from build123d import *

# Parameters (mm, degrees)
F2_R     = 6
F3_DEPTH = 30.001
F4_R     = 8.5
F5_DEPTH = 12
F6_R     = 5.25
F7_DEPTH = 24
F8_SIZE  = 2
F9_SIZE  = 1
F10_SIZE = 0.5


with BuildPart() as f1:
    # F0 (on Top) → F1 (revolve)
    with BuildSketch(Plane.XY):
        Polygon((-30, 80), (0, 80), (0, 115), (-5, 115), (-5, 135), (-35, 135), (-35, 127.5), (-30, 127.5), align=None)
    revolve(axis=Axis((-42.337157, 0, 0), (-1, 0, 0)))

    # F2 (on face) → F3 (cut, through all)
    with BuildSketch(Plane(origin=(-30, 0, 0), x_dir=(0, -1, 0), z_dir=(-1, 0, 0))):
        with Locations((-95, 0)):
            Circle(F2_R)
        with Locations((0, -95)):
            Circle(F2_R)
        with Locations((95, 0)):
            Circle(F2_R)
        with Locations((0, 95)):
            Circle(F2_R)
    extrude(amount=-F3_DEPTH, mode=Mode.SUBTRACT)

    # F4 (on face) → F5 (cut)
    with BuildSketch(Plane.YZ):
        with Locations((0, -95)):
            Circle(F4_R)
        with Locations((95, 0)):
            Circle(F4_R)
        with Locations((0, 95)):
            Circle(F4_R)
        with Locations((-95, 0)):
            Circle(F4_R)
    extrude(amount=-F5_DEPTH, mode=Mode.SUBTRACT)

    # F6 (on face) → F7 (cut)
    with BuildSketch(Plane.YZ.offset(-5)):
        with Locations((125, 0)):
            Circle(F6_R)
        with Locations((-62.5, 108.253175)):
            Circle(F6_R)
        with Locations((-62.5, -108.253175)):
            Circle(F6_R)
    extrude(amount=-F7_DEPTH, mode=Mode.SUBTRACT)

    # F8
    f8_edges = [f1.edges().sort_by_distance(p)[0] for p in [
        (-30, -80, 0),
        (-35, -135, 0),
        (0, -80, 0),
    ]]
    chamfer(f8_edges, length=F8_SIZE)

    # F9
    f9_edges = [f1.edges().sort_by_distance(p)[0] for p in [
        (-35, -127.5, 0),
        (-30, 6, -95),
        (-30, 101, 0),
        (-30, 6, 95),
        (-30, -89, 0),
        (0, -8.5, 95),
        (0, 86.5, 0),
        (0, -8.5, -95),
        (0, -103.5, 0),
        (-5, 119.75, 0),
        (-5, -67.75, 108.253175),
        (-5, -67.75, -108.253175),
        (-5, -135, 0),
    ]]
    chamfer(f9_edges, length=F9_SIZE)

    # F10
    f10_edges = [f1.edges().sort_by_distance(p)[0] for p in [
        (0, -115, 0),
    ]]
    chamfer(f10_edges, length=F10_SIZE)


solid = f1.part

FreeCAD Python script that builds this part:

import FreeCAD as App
import Part
import Sketcher
Q = App.Units.Quantity


def edges_at(feature, points):
    """Names of the edges that pass closest to the given points."""
    edges = feature.Shape.Edges
    near = lambda p: min(range(len(edges)), key=lambda i: edges[i].distToShape(Part.Vertex(*p))[0])
    return sorted({f"Edge{near(p) + 1}" for p in points})


def add_polygon(sketch, points):
    """Adds a closed chain of lines whose ends are joined by coincident constraints."""
    first, n = sketch.GeometryCount, len(points)
    for a, b in zip(points, points[1:] + points[:1]):
        sketch.addGeometry(Part.LineSegment(App.Vector(*a, 0), App.Vector(*b, 0)), False)
    for i in range(n):
        sketch.addConstraint(Sketcher.Constraint("Coincident", first + i, 2, first + (i + 1) % n, 1))

doc = App.newDocument("Part")
params = doc.addObject("Spreadsheet::Sheet", "Params")
for row, (alias, value) in enumerate([
    ("sketch1_width", "30 mm"),
    ("sketch1_width2", "5 mm"),
    ("sketch1_height", "35 mm"),
    ("sketch1_height2", "20 mm"),
    ("sketch1_height3", "7.5 mm"),
    ("revolution_angle", "360 deg"),
    ("sketch2_diameter", "12 mm"),
    ("sketch3_diameter", "17 mm"),
    ("pocket2_length", "12 mm"),
    ("sketch4_diameter", "10.5 mm"),
    ("pocket3_length", "24 mm"),
    ("chamfer_size", "2 mm"),
    ("chamfer2_size", "1 mm"),
    ("chamfer3_size", "0.5 mm"),
], start=1):
    params.set(f"A{row}", alias)
    params.set(f"B{row}", "=" + value)
    params.setAlias(f"B{row}", alias)

body = doc.addObject("PartDesign::Body", "Body")

# Sketch on XY plane
sketch1 = body.newObject("Sketcher::SketchObject", "Sketch")
sketch1.AttachmentSupport = (doc.getObject("XY_Plane"), [""])
sketch1.MapMode = "FlatFace"
add_polygon(sketch1, [(-30, 80), (0, 80), (0, 115), (-5, 115), (-5, 135), (-35, 135), (-35, 127.5), (-30, 127.5)])  # lines 0-7
sketch1.addConstraint(Sketcher.Constraint("Horizontal", 0))
sketch1.addConstraint(Sketcher.Constraint("Vertical", 1))
sketch1.addConstraint(Sketcher.Constraint("Horizontal", 2))
sketch1.addConstraint(Sketcher.Constraint("Vertical", 3))
sketch1.addConstraint(Sketcher.Constraint("Horizontal", 4))
sketch1.addConstraint(Sketcher.Constraint("Vertical", 5))
sketch1.addConstraint(Sketcher.Constraint("Horizontal", 6))
sketch1.addConstraint(Sketcher.Constraint("Vertical", 7))
sketch1.addConstraint(Sketcher.Constraint("PointOnObject", 0, 2, -2))
sketch1.addConstraint(Sketcher.Constraint("Equal", 0, 4))
sketch1.addConstraint(Sketcher.Constraint("DistanceX", 0, 1, 0, 2, Q("30 mm")))
sketch1.addConstraint(Sketcher.Constraint("DistanceX", 2, 2, 2, 1, Q("5 mm")))
sketch1.addConstraint(Sketcher.Constraint("DistanceY", 1, 1, 1, 2, Q("35 mm")))
sketch1.addConstraint(Sketcher.Constraint("DistanceY", 3, 1, 3, 2, Q("20 mm")))
sketch1.addConstraint(Sketcher.Constraint("DistanceY", 5, 2, 5, 1, Q("7.5 mm")))
sketch1.addConstraint(Sketcher.Constraint("DistanceY", -1, 1, 0, 2, Q("80 mm")))
sketch1.setExpression("Constraints[18]", "Params.sketch1_width")
sketch1.setExpression("Constraints[19]", "Params.sketch1_width2")
sketch1.setExpression("Constraints[20]", "Params.sketch1_height")
sketch1.setExpression("Constraints[21]", "Params.sketch1_height2")
sketch1.setExpression("Constraints[22]", "Params.sketch1_height3")
revolution = body.newObject("PartDesign::Revolution", "Revolution")
revolution.Profile = sketch1
revolution.ReferenceAxis = (sketch1, ["H_Axis"])
revolution.setExpression("Angle", "Params.revolution_angle")

# Sketch on YZ plane
sketch2 = body.newObject("Sketcher::SketchObject", "Sketch001")
sketch2.AttachmentSupport = (doc.getObject("YZ_Plane"), [""])
sketch2.MapMode = "FlatFace"
sketch2.AttachmentOffset = App.Placement(App.Vector(0, 0, -30), App.Rotation())
sketch2.addGeometry(Part.Circle(App.Vector(95, 0, 0), App.Vector(0, 0, 1), 6), False)
sketch2.addGeometry(Part.Circle(App.Vector(0, -95, 0), App.Vector(0, 0, 1), 6), False)
sketch2.addGeometry(Part.Circle(App.Vector(-95, 0, 0), App.Vector(0, 0, 1), 6), False)
sketch2.addGeometry(Part.Circle(App.Vector(0, 95, 0), App.Vector(0, 0, 1), 6), False)
sketch2.addConstraint(Sketcher.Constraint("Equal", 0, 1))
sketch2.addConstraint(Sketcher.Constraint("Equal", 1, 2))
sketch2.addConstraint(Sketcher.Constraint("Equal", 2, 3))
sketch2.addConstraint(Sketcher.Constraint("Symmetric", 0, 3, 2, 3, -1, 1))
sketch2.addConstraint(Sketcher.Constraint("Symmetric", 1, 3, 3, 3, -1, 1))
sketch2.addConstraint(Sketcher.Constraint("PointOnObject", 0, 3, -1))
sketch2.addConstraint(Sketcher.Constraint("PointOnObject", 1, 3, -2))
sketch2.addConstraint(Sketcher.Constraint("Diameter", 0, Q("12 mm")))
sketch2.addConstraint(Sketcher.Constraint("DistanceX", -1, 1, 0, 3, Q("95 mm")))
sketch2.addConstraint(Sketcher.Constraint("DistanceY", 1, 3, -1, 1, Q("95 mm")))
sketch2.setExpression("Constraints[7]", "Params.sketch2_diameter")
pocket1 = body.newObject("PartDesign::Pocket", "Pocket")
pocket1.Profile = sketch2
pocket1.Type = "ThroughAll"
pocket1.Reversed = True

# Sketch on YZ plane
sketch3 = body.newObject("Sketcher::SketchObject", "Sketch002")
sketch3.AttachmentSupport = (doc.getObject("YZ_Plane"), [""])
sketch3.MapMode = "FlatFace"
sketch3.addGeometry(Part.Circle(App.Vector(0, -95, 0), App.Vector(0, 0, 1), 8.5), False)
sketch3.addGeometry(Part.Circle(App.Vector(95, 0, 0), App.Vector(0, 0, 1), 8.5), False)
sketch3.addGeometry(Part.Circle(App.Vector(0, 95, 0), App.Vector(0, 0, 1), 8.5), False)
sketch3.addGeometry(Part.Circle(App.Vector(-95, 0, 0), App.Vector(0, 0, 1), 8.5), False)
sketch3.addConstraint(Sketcher.Constraint("Equal", 0, 1))
sketch3.addConstraint(Sketcher.Constraint("Equal", 1, 2))
sketch3.addConstraint(Sketcher.Constraint("Equal", 2, 3))
sketch3.addConstraint(Sketcher.Constraint("Symmetric", 0, 3, 2, 3, -1, 1))
sketch3.addConstraint(Sketcher.Constraint("Symmetric", 1, 3, 3, 3, -1, 1))
sketch3.addConstraint(Sketcher.Constraint("PointOnObject", 0, 3, -2))
sketch3.addConstraint(Sketcher.Constraint("PointOnObject", 1, 3, -1))
sketch3.addConstraint(Sketcher.Constraint("Diameter", 0, Q("17 mm")))
sketch3.addConstraint(Sketcher.Constraint("DistanceY", 0, 3, -1, 1, Q("95 mm")))
sketch3.addConstraint(Sketcher.Constraint("DistanceX", -1, 1, 1, 3, Q("95 mm")))
sketch3.setExpression("Constraints[7]", "Params.sketch3_diameter")
pocket2 = body.newObject("PartDesign::Pocket", "Pocket001")
pocket2.Profile = sketch3
pocket2.setExpression("Length", "Params.pocket2_length")

# Sketch on YZ plane
sketch4 = body.newObject("Sketcher::SketchObject", "Sketch003")
sketch4.AttachmentSupport = (doc.getObject("YZ_Plane"), [""])
sketch4.MapMode = "FlatFace"
sketch4.AttachmentOffset = App.Placement(App.Vector(0, 0, -5), App.Rotation())
sketch4.addGeometry(Part.Circle(App.Vector(125, 0, 0), App.Vector(0, 0, 1), 5.25), False)
sketch4.addGeometry(Part.Circle(App.Vector(-62.5, 108.253175, 0), App.Vector(0, 0, 1), 5.25), False)
sketch4.addGeometry(Part.Circle(App.Vector(-62.5, -108.253175, 0), App.Vector(0, 0, 1), 5.25), False)
sketch4.addConstraint(Sketcher.Constraint("Equal", 0, 1))
sketch4.addConstraint(Sketcher.Constraint("Equal", 1, 2))
sketch4.addConstraint(Sketcher.Constraint("Symmetric", 1, 3, 2, 3, -1))
sketch4.addConstraint(Sketcher.Constraint("PointOnObject", 0, 3, -1))
sketch4.addConstraint(Sketcher.Constraint("Diameter", 0, Q("10.5 mm")))
sketch4.addConstraint(Sketcher.Constraint("DistanceX", -1, 1, 0, 3, Q("125 mm")))
sketch4.addConstraint(Sketcher.Constraint("DistanceX", 1, 3, -1, 1, Q("62.5 mm")))
sketch4.addConstraint(Sketcher.Constraint("DistanceY", 2, 3, 1, 3, Q("216.50635 mm")))
sketch4.setExpression("Constraints[4]", "Params.sketch4_diameter")
pocket3 = body.newObject("PartDesign::Pocket", "Pocket002")
pocket3.Profile = sketch4
pocket3.setExpression("Length", "Params.pocket3_length")
doc.recompute()

chamfer = body.newObject("PartDesign::Chamfer", "Chamfer")
chamfer.Base = (pocket3, edges_at(pocket3, [(-30, -80, 0), (-35, -135, 0), (0, -80, 0)]))
chamfer.setExpression("Size", "Params.chamfer_size")
doc.recompute()

chamfer2 = body.newObject("PartDesign::Chamfer", "Chamfer001")
chamfer2.Base = (chamfer, edges_at(chamfer, [
    (-35, -127.5, 0),
    (-30, 6, -95),
    (-30, 101, 0),
    (-30, 6, 95),
    (-30, -89, 0),
    (0, -8.5, 95),
    (0, 86.5, 0),
    (0, -8.5, -95),
    (0, -103.5, 0),
    (-5, 119.75, 0),
    (-5, -67.75, 108.253),
    (-5, -67.75, -108.253),
    (-5, -135, 0),
]))
chamfer2.setExpression("Size", "Params.chamfer2_size")
doc.recompute()

chamfer3 = body.newObject("PartDesign::Chamfer", "Chamfer002")
chamfer3.Base = (chamfer2, edges_at(chamfer2, [(0, -115, 0)]))
chamfer3.setExpression("Size", "Params.chamfer3_size")

doc.recompute()
